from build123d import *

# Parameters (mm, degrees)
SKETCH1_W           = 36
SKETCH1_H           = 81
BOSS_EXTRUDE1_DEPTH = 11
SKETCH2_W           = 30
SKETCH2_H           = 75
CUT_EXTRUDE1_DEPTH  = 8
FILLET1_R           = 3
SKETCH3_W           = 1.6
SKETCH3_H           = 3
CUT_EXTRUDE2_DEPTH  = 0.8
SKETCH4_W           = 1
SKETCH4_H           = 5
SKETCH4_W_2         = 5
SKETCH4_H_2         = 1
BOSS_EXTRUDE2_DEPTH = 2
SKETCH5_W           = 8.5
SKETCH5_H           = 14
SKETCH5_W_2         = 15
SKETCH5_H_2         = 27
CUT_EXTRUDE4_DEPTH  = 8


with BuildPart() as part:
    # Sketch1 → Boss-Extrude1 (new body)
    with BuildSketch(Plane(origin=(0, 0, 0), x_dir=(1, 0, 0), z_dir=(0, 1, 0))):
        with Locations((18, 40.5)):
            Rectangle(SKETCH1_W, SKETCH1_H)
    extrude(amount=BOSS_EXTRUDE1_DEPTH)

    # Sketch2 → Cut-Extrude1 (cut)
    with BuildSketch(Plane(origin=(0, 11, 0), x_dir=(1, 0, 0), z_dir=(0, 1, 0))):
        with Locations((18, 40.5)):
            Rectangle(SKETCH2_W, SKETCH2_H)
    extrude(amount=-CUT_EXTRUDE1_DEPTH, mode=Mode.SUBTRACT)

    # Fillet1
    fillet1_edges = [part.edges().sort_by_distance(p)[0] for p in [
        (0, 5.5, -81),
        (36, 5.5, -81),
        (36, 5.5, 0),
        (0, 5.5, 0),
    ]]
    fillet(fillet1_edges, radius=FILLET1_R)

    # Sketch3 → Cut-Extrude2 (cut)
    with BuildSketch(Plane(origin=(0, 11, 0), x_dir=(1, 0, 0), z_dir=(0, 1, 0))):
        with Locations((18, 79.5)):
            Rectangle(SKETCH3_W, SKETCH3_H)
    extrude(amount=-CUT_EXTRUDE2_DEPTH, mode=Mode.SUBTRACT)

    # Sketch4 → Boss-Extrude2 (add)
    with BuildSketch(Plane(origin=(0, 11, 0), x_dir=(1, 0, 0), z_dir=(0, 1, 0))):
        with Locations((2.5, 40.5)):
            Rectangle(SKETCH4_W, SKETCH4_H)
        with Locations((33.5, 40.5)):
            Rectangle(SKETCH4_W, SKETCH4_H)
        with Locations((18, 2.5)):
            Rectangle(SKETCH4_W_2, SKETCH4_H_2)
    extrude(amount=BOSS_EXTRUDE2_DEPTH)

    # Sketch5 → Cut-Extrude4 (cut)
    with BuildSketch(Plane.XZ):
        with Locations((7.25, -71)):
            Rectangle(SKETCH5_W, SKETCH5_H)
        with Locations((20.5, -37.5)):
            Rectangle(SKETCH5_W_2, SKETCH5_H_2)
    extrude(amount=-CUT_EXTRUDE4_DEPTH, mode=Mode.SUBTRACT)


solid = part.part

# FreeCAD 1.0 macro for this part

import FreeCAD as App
import Part
import Sketcher


def edges_at(feature, points):
    """Names of the edges that pass closest to the given points."""
    edges = feature.Shape.Edges
    near = lambda p: min(range(len(edges)), key=lambda i: edges[i].distToShape(Part.Vertex(*p))[0])
    return sorted({f"Edge{near(p) + 1}" for p in points})

doc = App.newDocument("Part")
params = doc.addObject("Spreadsheet::Sheet", "Params")
for row, (alias, value) in enumerate([
    ("sketch1_width", "36 mm"),
    ("sketch1_height", "81 mm"),
    ("pad1_length", "11 mm"),
    ("sketch2_width", "30 mm"),
    ("sketch2_height", "75 mm"),
    ("pocket1_length", "8 mm"),
    ("fillet_radius", "3 mm"),
    ("sketch3_height", "3 mm"),
    ("sketch3_width", "1.6 mm"),
    ("pocket2_length", "0.8 mm"),
    ("sketch4_width", "1 mm"),
    ("sketch4_width2", "5 mm"),
    ("pad2_length", "2 mm"),
    ("sketch5_width", "15 mm"),
    ("sketch5_height", "14 mm"),
    ("sketch5_height2", "27 mm"),
    ("sketch5_width2", "8.5 mm"),
    ("pocket3_length", "8 mm"),
], start=1):
    params.set(f"A{row}", alias)
    params.set(f"B{row}", "=" + value)
    params.setAlias(f"B{row}", alias)

body = doc.addObject("PartDesign::Body", "Body")

sketch1 = body.newObject("Sketcher::SketchObject", "Sketch")
sketch1.AttachmentSupport = (doc.getObject("XZ_Plane"), [""])
sketch1.MapMode = "FlatFace"
sketch1.addGeometry(Part.LineSegment(App.Vector(0, -81, 0), App.Vector(0, 0, 0)), False)
sketch1.addGeometry(Part.LineSegment(App.Vector(0, 0, 0), App.Vector(36, 0, 0)), False)
sketch1.addGeometry(Part.LineSegment(App.Vector(36, 0, 0), App.Vector(36, -81, 0)), False)
sketch1.addGeometry(Part.LineSegment(App.Vector(36, -81, 0), App.Vector(0, -81, 0)), False)
sketch1.addConstraint(Sketcher.Constraint("Coincident", 0, 2, 1, 1))
sketch1.addConstraint(Sketcher.Constraint("Coincident", 1, 2, 2, 1))
sketch1.addConstraint(Sketcher.Constraint("Coincident", 2, 2, 3, 1))
sketch1.addConstraint(Sketcher.Constraint("Coincident", 3, 2, 0, 1))
sketch1.addConstraint(Sketcher.Constraint("Vertical", 0))
sketch1.addConstraint(Sketcher.Constraint("Horizontal", 1))
sketch1.addConstraint(Sketcher.Constraint("Vertical", 2))
sketch1.addConstraint(Sketcher.Constraint("Horizontal", 3))
sketch1.addConstraint(Sketcher.Constraint("Coincident", 0, 2, -1, 1))
sketch1.addConstraint(Sketcher.Constraint("DistanceX", 1, 1, 1, 2, 36.0))
sketch1.addConstraint(Sketcher.Constraint("DistanceY", 0, 1, 0, 2, 81.0))
sketch1.setExpression("Constraints[9]", "Params.sketch1_width")
sketch1.setExpression("Constraints[10]", "Params.sketch1_height")
pad1 = body.newObject("PartDesign::Pad", "Pad")
pad1.Profile = sketch1
pad1.setExpression("Length", "Params.pad1_length")
pad1.Reversed = True

sketch2 = body.newObject("Sketcher::SketchObject", "Sketch001")
sketch2.AttachmentSupport = (doc.getObject("XZ_Plane"), [""])
sketch2.MapMode = "FlatFace"
sketch2.AttachmentOffset = App.Placement(App.Vector(0, 0, -11), App.Rotation())
sketch2.addGeometry(Part.LineSegment(App.Vector(3, -78, 0), App.Vector(3, -3, 0)), False)
sketch2.addGeometry(Part.LineSegment(App.Vector(3, -3, 0), App.Vector(33, -3, 0)), False)
sketch2.addGeometry(Part.LineSegment(App.Vector(33, -3, 0), App.Vector(33, -78, 0)), False)
sketch2.addGeometry(Part.LineSegment(App.Vector(33, -78, 0), App.Vector(3, -78, 0)), False)
sketch2.addConstraint(Sketcher.Constraint("Coincident", 0, 2, 1, 1))
sketch2.addConstraint(Sketcher.Constraint("Coincident", 1, 2, 2, 1))
sketch2.addConstraint(Sketcher.Constraint("Coincident", 2, 2, 3, 1))
sketch2.addConstraint(Sketcher.Constraint("Coincident", 3, 2, 0, 1))
sketch2.addConstraint(Sketcher.Constraint("Vertical", 0))
sketch2.addConstraint(Sketcher.Constraint("Horizontal", 1))
sketch2.addConstraint(Sketcher.Constraint("Vertical", 2))
sketch2.addConstraint(Sketcher.Constraint("Horizontal", 3))
sketch2.addConstraint(Sketcher.Constraint("DistanceX", 1, 1, 1, 2, 30.0))
sketch2.addConstraint(Sketcher.Constraint("DistanceY", 0, 1, 0, 2, 75.0))
sketch2.addConstraint(Sketcher.Constraint("DistanceX", -1, 1, 0, 2, 3.0))
sketch2.addConstraint(Sketcher.Constraint("DistanceY", 0, 2, -1, 1, 3.0))
sketch2.setExpression("Constraints[8]", "Params.sketch2_width")
sketch2.setExpression("Constraints[9]", "Params.sketch2_height")
pocket1 = body.newObject("PartDesign::Pocket", "Pocket")
pocket1.Profile = sketch2
pocket1.setExpression("Length", "Params.pocket1_length")
pocket1.Reversed = True
doc.recompute()

fillet = body.newObject("PartDesign::Fillet", "Fillet")
fillet.Base = (pocket1, edges_at(pocket1, [
    (0, 5.5, -81),
    (36, 5.5, -81),
    (36, 5.5, 0),
    (0, 5.5, 0),
]))
fillet.setExpression("Radius", "Params.fillet_radius")

sketch3 = body.newObject("Sketcher::SketchObject", "Sketch002")
sketch3.AttachmentSupport = (doc.getObject("XZ_Plane"), [""])
sketch3.MapMode = "FlatFace"
sketch3.AttachmentOffset = App.Placement(App.Vector(0, 0, -11), App.Rotation())
sketch3.addGeometry(Part.LineSegment(App.Vector(17.2, -81, 0), App.Vector(17.2, -78, 0)), False)
sketch3.addGeometry(Part.LineSegment(App.Vector(17.2, -78, 0), App.Vector(18.8, -78, 0)), False)
sketch3.addGeometry(Part.LineSegment(App.Vector(18.8, -78, 0), App.Vector(18.8, -81, 0)), False)
sketch3.addGeometry(Part.LineSegment(App.Vector(18.8, -81, 0), App.Vector(17.2, -81, 0)), False)
sketch3.addConstraint(Sketcher.Constraint("Coincident", 0, 2, 1, 1))
sketch3.addConstraint(Sketcher.Constraint("Coincident", 1, 2, 2, 1))
sketch3.addConstraint(Sketcher.Constraint("Coincident", 2, 2, 3, 1))
sketch3.addConstraint(Sketcher.Constraint("Coincident", 3, 2, 0, 1))
sketch3.addConstraint(Sketcher.Constraint("Vertical", 0))
sketch3.addConstraint(Sketcher.Constraint("Horizontal", 1))
sketch3.addConstraint(Sketcher.Constraint("Vertical", 2))
sketch3.addConstraint(Sketcher.Constraint("Horizontal", 3))
sketch3.addConstraint(Sketcher.Constraint("DistanceY", 0, 1, 0, 2, 3.0))
sketch3.addConstraint(Sketcher.Constraint("DistanceX", 1, 1, 1, 2, 1.6))
sketch3.addConstraint(Sketcher.Constraint("DistanceY", 0, 2, -1, 1, 78.0))
sketch3.addConstraint(Sketcher.Constraint("DistanceX", -1, 1, 0, 2, 17.2))
sketch3.setExpression("Constraints[8]", "Params.sketch3_height")
sketch3.setExpression("Constraints[9]", "Params.sketch3_width")
pocket2 = body.newObject("PartDesign::Pocket", "Pocket001")
pocket2.Profile = sketch3
pocket2.setExpression("Length", "Params.pocket2_length")
pocket2.Reversed = True

sketch4 = body.newObject("Sketcher::SketchObject", "Sketch003")
sketch4.AttachmentSupport = (doc.getObject("XZ_Plane"), [""])
sketch4.MapMode = "FlatFace"
sketch4.AttachmentOffset = App.Placement(App.Vector(0, 0, -11), App.Rotation())
sketch4.addGeometry(Part.LineSegment(App.Vector(2, -43, 0), App.Vector(2, -38, 0)), False)
sketch4.addGeometry(Part.LineSegment(App.Vector(2, -38, 0), App.Vector(3, -38, 0)), False)
sketch4.addGeometry(Part.LineSegment(App.Vector(3, -38, 0), App.Vector(3, -43, 0)), False)
sketch4.addGeometry(Part.LineSegment(App.Vector(3, -43, 0), App.Vector(2, -43, 0)), False)
sketch4.addGeometry(Part.LineSegment(App.Vector(33, -43, 0), App.Vector(33, -38, 0)), False)
sketch4.addGeometry(Part.LineSegment(App.Vector(33, -38, 0), App.Vector(34, -38, 0)), False)
sketch4.addGeometry(Part.LineSegment(App.Vector(34, -38, 0), App.Vector(34, -43, 0)), False)
sketch4.addGeometry(Part.LineSegment(App.Vector(34, -43, 0), App.Vector(33, -43, 0)), False)
sketch4.addGeometry(Part.LineSegment(App.Vector(15.5, -3, 0), App.Vector(15.5, -2, 0)), False)
sketch4.addGeometry(Part.LineSegment(App.Vector(15.5, -2, 0), App.Vector(20.5, -2, 0)), False)
sketch4.addGeometry(Part.LineSegment(App.Vector(20.5, -2, 0), App.Vector(20.5, -3, 0)), False)
sketch4.addGeometry(Part.LineSegment(App.Vector(20.5, -3, 0), App.Vector(15.5, -3, 0)), False)
sketch4.addConstraint(Sketcher.Constraint("Coincident", 0, 2, 1, 1))
sketch4.addConstraint(Sketcher.Constraint("Coincident", 1, 2, 2, 1))
sketch4.addConstraint(Sketcher.Constraint("Coincident", 2, 2, 3, 1))
sketch4.addConstraint(Sketcher.Constraint("Coincident", 3, 2, 0, 1))
sketch4.addConstraint(Sketcher.Constraint("Coincident", 4, 2, 5, 1))
sketch4.addConstraint(Sketcher.Constraint("Coincident", 5, 2, 6, 1))
sketch4.addConstraint(Sketcher.Constraint("Coincident", 6, 2, 7, 1))
sketch4.addConstraint(Sketcher.Constraint("Coincident", 7, 2, 4, 1))
sketch4.addConstraint(Sketcher.Constraint("Coincident", 8, 2, 9, 1))
sketch4.addConstraint(Sketcher.Constraint("Coincident", 9, 2, 10, 1))
sketch4.addConstraint(Sketcher.Constraint("Coincident", 10, 2, 11, 1))
sketch4.addConstraint(Sketcher.Constraint("Coincident", 11, 2, 8, 1))
sketch4.addConstraint(Sketcher.Constraint("Vertical", 0))
sketch4.addConstraint(Sketcher.Constraint("Horizontal", 1))
sketch4.addConstraint(Sketcher.Constraint("Vertical", 2))
sketch4.addConstraint(Sketcher.Constraint("Horizontal", 3))
sketch4.addConstraint(Sketcher.Constraint("Vertical", 4))
sketch4.addConstraint(Sketcher.Constraint("Horizontal", 5))
sketch4.addConstraint(Sketcher.Constraint("Vertical", 6))
sketch4.addConstraint(Sketcher.Constraint("Horizontal", 7))
sketch4.addConstraint(Sketcher.Constraint("Vertical", 8))
sketch4.addConstraint(Sketcher.Constraint("Horizontal", 9))
sketch4.addConstraint(Sketcher.Constraint("Vertical", 10))
sketch4.addConstraint(Sketcher.Constraint("Horizontal", 11))
sketch4.addConstraint(Sketcher.Constraint("Horizontal", 1, 2, 4, 2))
sketch4.addConstraint(Sketcher.Constraint("Horizontal", 3, 2, 6, 2))
sketch4.addConstraint(Sketcher.Constraint("Equal", 3, 5))
sketch4.addConstraint(Sketcher.Constraint("Equal", 11, 0))
sketch4.addConstraint(Sketcher.Constraint("Equal", 7, 8))
sketch4.addConstraint(Sketcher.Constraint("DistanceX", 1, 1, 1, 2, 1.0))
sketch4.addConstraint(Sketcher.Constraint("DistanceX", 9, 1, 9, 2, 5.0))
sketch4.addConstraint(Sketcher.Constraint("DistanceX", -1, 1, 0, 2, 2.0))
sketch4.addConstraint(Sketcher.Constraint("DistanceY", 0, 2, -1, 1, 38.0))
sketch4.addConstraint(Sketcher.Constraint("DistanceX", -1, 1, 4, 2, 33.0))
sketch4.addConstraint(Sketcher.Constraint("DistanceY", 8, 2, -1, 1, 2.0))
sketch4.addConstraint(Sketcher.Constraint("DistanceX", -1, 1, 8, 2, 15.5))
sketch4.setExpression("Constraints[29]", "Params.sketch4_width")
sketch4.setExpression("Constraints[30]", "Params.sketch4_width2")
pad2 = body.newObject("PartDesign::Pad", "Pad001")
pad2.Profile = sketch4
pad2.setExpression("Length", "Params.pad2_length")
pad2.Reversed = True

sketch5 = body.newObject("Sketcher::SketchObject", "Sketch004")
sketch5.AttachmentSupport = (doc.getObject("XZ_Plane"), [""])
sketch5.MapMode = "FlatFace"
sketch5.addGeometry(Part.LineSegment(App.Vector(3, -64, 0), App.Vector(3, -78, 0)), False)
sketch5.addGeometry(Part.LineSegment(App.Vector(3, -78, 0), App.Vector(12, -78, 0)), False)
sketch5.addGeometry(Part.LineSegment(App.Vector(12, -78, 0), App.Vector(12, -64, 0)), False)
sketch5.addGeometry(Part.LineSegment(App.Vector(12, -64, 0), App.Vector(3, -64, 0)), False)
sketch5.addGeometry(Part.LineSegment(App.Vector(13, -24, 0), App.Vector(13, -51, 0)), False)
sketch5.addGeometry(Part.LineSegment(App.Vector(13, -51, 0), App.Vector(28, -51, 0)), False)
sketch5.addGeometry(Part.LineSegment(App.Vector(28, -51, 0), App.Vector(28, -24, 0)), False)
sketch5.addGeometry(Part.LineSegment(App.Vector(28, -24, 0), App.Vector(13, -24, 0)), False)
sketch5.addConstraint(Sketcher.Constraint("Coincident", 0, 2, 1, 1))
sketch5.addConstraint(Sketcher.Constraint("Coincident", 1, 2, 2, 1))
sketch5.addConstraint(Sketcher.Constraint("Coincident", 2, 2, 3, 1))
sketch5.addConstraint(Sketcher.Constraint("Coincident", 3, 2, 0, 1))
sketch5.addConstraint(Sketcher.Constraint("Coincident", 4, 2, 5, 1))
sketch5.addConstraint(Sketcher.Constraint("Coincident", 5, 2, 6, 1))
sketch5.addConstraint(Sketcher.Constraint("Coincident", 6, 2, 7, 1))
sketch5.addConstraint(Sketcher.Constraint("Coincident", 7, 2, 4, 1))
sketch5.addConstraint(Sketcher.Constraint("Vertical", 0))
sketch5.addConstraint(Sketcher.Constraint("Horizontal", 1))
sketch5.addConstraint(Sketcher.Constraint("Vertical", 2))
sketch5.addConstraint(Sketcher.Constraint("Horizontal", 3))
sketch5.addConstraint(Sketcher.Constraint("Vertical", 4))
sketch5.addConstraint(Sketcher.Constraint("Horizontal", 5))
sketch5.addConstraint(Sketcher.Constraint("Vertical", 6))
sketch5.addConstraint(Sketcher.Constraint("Horizontal", 7))
sketch5.addConstraint(Sketcher.Constraint("DistanceX", 5, 1, 5, 2, 15.0))
sketch5.addConstraint(Sketcher.Constraint("DistanceY", 0, 2, 0, 1, 14.0))
sketch5.addConstraint(Sketcher.Constraint("DistanceY", 4, 2, 4, 1, 27.0))
sketch5.addConstraint(Sketcher.Constraint("DistanceX", 1, 1, 1, 2, 8.5))
sketch5.addConstraint(Sketcher.Constraint("DistanceX", -1, 1, 0, 2, 3.0))
sketch5.addConstraint(Sketcher.Constraint("DistanceY", 0, 2, -1, 1, 78.0))
sketch5.addConstraint(Sketcher.Constraint("DistanceX", -1, 1, 4, 2, 13.0))
sketch5.addConstraint(Sketcher.Constraint("DistanceY", 4, 2, -1, 1, 51.0))
sketch5.setExpression("Constraints[16]", "Params.sketch5_width")
sketch5.setExpression("Constraints[17]", "Params.sketch5_height")
sketch5.setExpression("Constraints[18]", "Params.sketch5_height2")
sketch5.setExpression("Constraints[19]", "Params.sketch5_width2")
pocket3 = body.newObject("PartDesign::Pocket", "Pocket002")
pocket3.Profile = sketch5
pocket3.setExpression("Length", "Params.pocket3_length")

doc.recompute()
